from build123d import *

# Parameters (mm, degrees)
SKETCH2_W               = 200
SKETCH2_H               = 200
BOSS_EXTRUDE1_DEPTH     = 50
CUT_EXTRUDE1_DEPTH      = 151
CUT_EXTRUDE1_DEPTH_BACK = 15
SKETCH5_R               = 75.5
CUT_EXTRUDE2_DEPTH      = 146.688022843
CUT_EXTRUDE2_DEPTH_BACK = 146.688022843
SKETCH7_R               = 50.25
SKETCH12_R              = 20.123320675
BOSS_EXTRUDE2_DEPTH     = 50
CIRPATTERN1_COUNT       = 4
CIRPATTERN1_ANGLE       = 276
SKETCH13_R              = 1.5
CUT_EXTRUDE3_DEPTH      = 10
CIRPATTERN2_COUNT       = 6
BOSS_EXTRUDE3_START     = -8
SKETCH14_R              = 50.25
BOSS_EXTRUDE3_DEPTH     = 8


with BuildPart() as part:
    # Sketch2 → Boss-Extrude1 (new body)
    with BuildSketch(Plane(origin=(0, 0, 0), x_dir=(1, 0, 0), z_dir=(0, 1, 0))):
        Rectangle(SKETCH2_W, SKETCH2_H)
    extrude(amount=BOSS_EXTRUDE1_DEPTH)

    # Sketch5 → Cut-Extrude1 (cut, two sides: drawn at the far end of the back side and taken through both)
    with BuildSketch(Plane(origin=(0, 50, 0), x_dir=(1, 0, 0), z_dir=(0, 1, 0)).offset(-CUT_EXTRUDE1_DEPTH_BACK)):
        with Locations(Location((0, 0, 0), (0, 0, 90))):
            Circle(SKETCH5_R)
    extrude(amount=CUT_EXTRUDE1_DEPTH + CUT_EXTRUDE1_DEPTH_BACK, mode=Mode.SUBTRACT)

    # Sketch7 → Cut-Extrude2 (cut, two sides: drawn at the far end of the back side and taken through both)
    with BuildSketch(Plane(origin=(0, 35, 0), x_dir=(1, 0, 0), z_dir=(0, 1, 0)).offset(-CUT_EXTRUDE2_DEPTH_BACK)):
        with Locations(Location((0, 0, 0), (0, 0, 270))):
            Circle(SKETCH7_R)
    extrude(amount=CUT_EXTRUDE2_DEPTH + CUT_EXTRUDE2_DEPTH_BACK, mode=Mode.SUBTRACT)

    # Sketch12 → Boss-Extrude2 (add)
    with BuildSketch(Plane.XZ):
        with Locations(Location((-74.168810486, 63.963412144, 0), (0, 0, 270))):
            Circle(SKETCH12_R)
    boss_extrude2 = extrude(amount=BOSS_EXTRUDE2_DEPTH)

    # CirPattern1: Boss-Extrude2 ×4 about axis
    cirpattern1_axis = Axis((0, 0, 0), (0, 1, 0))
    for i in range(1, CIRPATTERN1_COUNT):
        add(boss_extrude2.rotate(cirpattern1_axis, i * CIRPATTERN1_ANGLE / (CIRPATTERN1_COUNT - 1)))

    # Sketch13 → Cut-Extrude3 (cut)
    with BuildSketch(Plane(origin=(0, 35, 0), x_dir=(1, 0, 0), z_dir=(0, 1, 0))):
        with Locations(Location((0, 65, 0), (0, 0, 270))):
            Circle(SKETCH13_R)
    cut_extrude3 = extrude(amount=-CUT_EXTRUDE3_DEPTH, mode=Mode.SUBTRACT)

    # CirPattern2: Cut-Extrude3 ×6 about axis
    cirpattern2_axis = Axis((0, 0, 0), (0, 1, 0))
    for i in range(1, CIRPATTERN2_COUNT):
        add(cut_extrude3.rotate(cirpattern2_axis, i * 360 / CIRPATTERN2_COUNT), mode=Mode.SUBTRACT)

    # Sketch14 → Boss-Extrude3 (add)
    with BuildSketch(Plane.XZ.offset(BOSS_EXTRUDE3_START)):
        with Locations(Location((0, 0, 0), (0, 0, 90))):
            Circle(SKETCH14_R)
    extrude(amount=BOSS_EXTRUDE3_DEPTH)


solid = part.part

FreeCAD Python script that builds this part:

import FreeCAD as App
import Part
import Sketcher


def add_polygon(sketch, points):
    """Adds a closed chain of lines whose ends are joined by coincident constraints."""
    first, n = sketch.GeometryCount, len(points)
    for a, b in zip(points, points[1:] + points[:1]):
        sketch.addGeometry(Part.LineSegment(App.Vector(*a, 0), App.Vector(*b, 0)), False)
    for i in range(n):
        sketch.addConstraint(Sketcher.Constraint("Coincident", first + i, 2, first + (i + 1) % n, 1))

doc = App.newDocument("Part")
params = doc.addObject("Spreadsheet::Sheet", "Params")
for row, (alias, value) in enumerate([
    ("sketch1_width", "200 mm"),
    ("pad1_length", "50 mm"),
    ("sketch2_diameter", "151 mm"),
    ("pocket1_length", "151 mm"),
    ("pocket1_length2", "15 mm"),
    ("sketch3_diameter", "100.5 mm"),
    ("pad2_length", "50 mm"),
    ("sketch5_diameter", "3 mm"),
    ("pocket3_length", "10 mm"),
    ("sketch6_diameter", "100.5 mm"),
    ("pad3_length", "8 mm"),
], start=1):
    params.set(f"A{row}", alias)
    params.set(f"B{row}", "=" + value)
    params.setAlias(f"B{row}", alias)

body = doc.addObject("PartDesign::Body", "Body")

# Sketch on XZ plane
sketch1 = doc.addObject("Sketcher::SketchObject", "Sketch")
body.addObject(sketch1)
sketch1.AttachmentSupport = (doc.XZ_Plane, [""])
sketch1.MapMode = "FlatFace"
add_polygon(sketch1, [(-100, -100), (-100, 100), (100, 100), (100, -100)])  # lines 0-3
sketch1.addConstraint(Sketcher.Constraint("Vertical", 0))
sketch1.addConstraint(Sketcher.Constraint("Horizontal", 1))
sketch1.addConstraint(Sketcher.Constraint("Vertical", 2))
sketch1.addConstraint(Sketcher.Constraint("Horizontal", 3))
sketch1.addConstraint(Sketcher.Constraint("Symmetric", 0, 2, 2, 2, -1, 1))
sketch1.addConstraint(Sketcher.Constraint("Equal", 3, 0))
sketch1.addConstraint(Sketcher.Constraint("DistanceX", 1, 1, 1, 2, 200.0))
sketch1.setExpression("Constraints[10]", "Params.sketch1_width")
pad1 = doc.addObject("PartDesign::Pad", "Pad")
body.addObject(pad1)
pad1.Profile = sketch1
pad1.setExpression("Length", "Params.pad1_length")
pad1.Reversed = True

# Sketch on XZ plane
sketch2 = doc.addObject("Sketcher::SketchObject", "Sketch001")
body.addObject(sketch2)
sketch2.AttachmentSupport = (doc.XZ_Plane, [""])
sketch2.MapMode = "FlatFace"
sketch2.AttachmentOffset = App.Placement(App.Vector(0, 0, -50), App.Rotation())
sketch2.addGeometry(Part.Circle(App.Vector(0, 0, 0), App.Vector(0, 0, 1), 76), False)
sketch2.addConstraint(Sketcher.Constraint("Coincident", 0, 3, -1, 1))
sketch2.addConstraint(Sketcher.Constraint("Diameter", 0, 151.0))
sketch2.setExpression("Constraints[1]", "Params.sketch2_diameter")
pocket1 = doc.addObject("PartDesign::Pocket", "Pocket")
body.addObject(pocket1)
pocket1.Profile = sketch2
pocket1.Type = "TwoLengths"
pocket1.setExpression("Length", "Params.pocket1_length")
pocket1.setExpression("Length2", "Params.pocket1_length2")

# Sketch on XZ plane
sketch3 = doc.addObject("Sketcher::SketchObject", "Sketch002")
body.addObject(sketch3)
sketch3.AttachmentSupport = (doc.XZ_Plane, [""])
sketch3.MapMode = "FlatFace"
sketch3.AttachmentOffset = App.Placement(App.Vector(0, 0, -35), App.Rotation())
sketch3.addGeometry(Part.Circle(App.Vector(0, 0, 0), App.Vector(0, 0, 1), 50), False)
sketch3.addConstraint(Sketcher.Constraint("Coincident", 0, 3, -1, 1))
sketch3.addConstraint(Sketcher.Constraint("Diameter", 0, 100.5))
sketch3.setExpression("Constraints[1]", "Params.sketch3_diameter")
pocket2 = doc.addObject("PartDesign::Pocket", "Pocket001")
body.addObject(pocket2)
pocket2.Profile = sketch3
pocket2.Type = "ThroughAll"
pocket2.Midplane = True

# Sketch on XZ plane
sketch4 = doc.addObject("Sketcher::SketchObject", "Sketch003")
body.addObject(sketch4)
sketch4.AttachmentSupport = (doc.XZ_Plane, [""])
sketch4.MapMode = "FlatFace"
sketch4.addGeometry(Part.Circle(App.Vector(-74, 64, 0), App.Vector(0, 0, 1), 20), False)
sketch4.addConstraint(Sketcher.Constraint("Diameter", 0, 40.246641))
sketch4.addConstraint(Sketcher.Constraint("DistanceX", 0, 3, -1, 1, 74.16881))
sketch4.addConstraint(Sketcher.Constraint("DistanceY", -1, 1, 0, 3, 63.963412))
pad2 = doc.addObject("PartDesign::Pad", "Pad001")
body.addObject(pad2)
pad2.Profile = sketch4
pad2.setExpression("Length", "Params.pad2_length")
doc.recompute()

polarpattern = doc.addObject("PartDesign::PolarPattern", "PolarPattern")
body.addObject(polarpattern)
polarpattern.Originals = [pad2]
polarpattern.Axis = (doc.Y_Axis, [""])
polarpattern.Angle = 276
polarpattern.Occurrences = 4
body.Tip = polarpattern

# Sketch on XZ plane
sketch5 = doc.addObject("Sketcher::SketchObject", "Sketch004")
body.addObject(sketch5)
sketch5.AttachmentSupport = (doc.XZ_Plane, [""])
sketch5.MapMode = "FlatFace"
sketch5.AttachmentOffset = App.Placement(App.Vector(0, 0, -35), App.Rotation())
sketch5.addGeometry(Part.Circle(App.Vector(0, -65, 0), App.Vector(0, 0, 1), 1.5), False)
sketch5.addConstraint(Sketcher.Constraint("PointOnObject", 0, 3, -2))
sketch5.addConstraint(Sketcher.Constraint("Diameter", 0, 3.0))
sketch5.addConstraint(Sketcher.Constraint("DistanceY", 0, 3, -1, 1, 65.0))
sketch5.setExpression("Constraints[1]", "Params.sketch5_diameter")
pocket3 = doc.addObject("PartDesign::Pocket", "Pocket002")
body.addObject(pocket3)
pocket3.Profile = sketch5
pocket3.setExpression("Length", "Params.pocket3_length")
pocket3.Reversed = True
doc.recompute()

polarpattern2 = doc.addObject("PartDesign::PolarPattern", "PolarPattern001")
body.addObject(polarpattern2)
polarpattern2.Originals = [pocket3]
polarpattern2.Axis = (doc.Y_Axis, [""])
polarpattern2.Angle = 360
polarpattern2.Occurrences = 6
body.Tip = polarpattern2

# Sketch on XZ plane
sketch6 = doc.addObject("Sketcher::SketchObject", "Sketch005")
body.addObject(sketch6)
sketch6.AttachmentSupport = (doc.XZ_Plane, [""])
sketch6.MapMode = "FlatFace"
sketch6.AttachmentOffset = App.Placement(App.Vector(0, 0, -8), App.Rotation())
sketch6.addGeometry(Part.Circle(App.Vector(0, 0, 0), App.Vector(0, 0, 1), 50), False)
sketch6.addConstraint(Sketcher.Constraint("Coincident", 0, 3, -1, 1))
sketch6.addConstraint(Sketcher.Constraint("Diameter", 0, 100.5))
sketch6.setExpression("Constraints[1]", "Params.sketch6_diameter")
pad3 = doc.addObject("PartDesign::Pad", "Pad002")
body.addObject(pad3)
pad3.Profile = sketch6
pad3.setExpression("Length", "Params.pad3_length")

doc.recompute()
